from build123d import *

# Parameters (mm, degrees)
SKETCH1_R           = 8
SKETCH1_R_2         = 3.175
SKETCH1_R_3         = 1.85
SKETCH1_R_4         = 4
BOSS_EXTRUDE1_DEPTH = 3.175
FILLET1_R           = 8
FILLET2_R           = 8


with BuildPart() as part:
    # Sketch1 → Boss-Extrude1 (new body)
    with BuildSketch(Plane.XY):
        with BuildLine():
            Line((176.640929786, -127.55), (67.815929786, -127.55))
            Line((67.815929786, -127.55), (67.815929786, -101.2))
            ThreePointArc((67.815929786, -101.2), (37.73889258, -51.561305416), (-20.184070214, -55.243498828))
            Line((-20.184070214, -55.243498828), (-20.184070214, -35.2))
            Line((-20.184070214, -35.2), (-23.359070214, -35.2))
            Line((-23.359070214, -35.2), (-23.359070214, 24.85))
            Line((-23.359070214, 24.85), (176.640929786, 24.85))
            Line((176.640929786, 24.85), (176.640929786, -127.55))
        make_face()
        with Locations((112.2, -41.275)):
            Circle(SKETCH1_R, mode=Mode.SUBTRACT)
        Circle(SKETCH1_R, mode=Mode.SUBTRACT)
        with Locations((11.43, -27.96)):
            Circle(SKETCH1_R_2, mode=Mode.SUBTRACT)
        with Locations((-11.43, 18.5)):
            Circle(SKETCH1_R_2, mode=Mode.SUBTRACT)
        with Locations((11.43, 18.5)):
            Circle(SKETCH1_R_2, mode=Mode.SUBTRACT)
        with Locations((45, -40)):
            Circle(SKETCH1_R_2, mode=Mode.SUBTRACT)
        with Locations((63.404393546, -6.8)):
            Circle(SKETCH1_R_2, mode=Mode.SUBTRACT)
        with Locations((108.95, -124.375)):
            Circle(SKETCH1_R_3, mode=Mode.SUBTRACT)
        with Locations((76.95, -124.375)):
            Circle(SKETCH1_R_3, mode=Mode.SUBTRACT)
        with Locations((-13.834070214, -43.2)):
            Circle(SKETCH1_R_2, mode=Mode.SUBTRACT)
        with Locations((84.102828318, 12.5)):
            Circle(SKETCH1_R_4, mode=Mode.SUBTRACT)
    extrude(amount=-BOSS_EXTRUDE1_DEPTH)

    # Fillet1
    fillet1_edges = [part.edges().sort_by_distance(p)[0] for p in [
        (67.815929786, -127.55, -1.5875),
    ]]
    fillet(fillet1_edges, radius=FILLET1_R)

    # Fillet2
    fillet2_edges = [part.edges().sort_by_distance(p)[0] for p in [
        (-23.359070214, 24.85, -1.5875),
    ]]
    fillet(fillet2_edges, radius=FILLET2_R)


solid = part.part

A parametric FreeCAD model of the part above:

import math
import FreeCAD as App
import Part
import Sketcher
from FreeCAD import Vector
Q = App.Units.Quantity


def edges_at(feature, points):
    """Names of the edges that pass closest to the given points."""
    edges = feature.Shape.Edges
    near = lambda p: min(range(len(edges)), key=lambda i: edges[i].distToShape(Part.Vertex(*p))[0])
    return sorted({f"Edge{near(p) + 1}" for p in points})

doc = App.newDocument("Part")
params = doc.addObject("Spreadsheet::Sheet", "Params")
for row, (alias, value) in enumerate([
    ("sketch1_diameter", "16 mm"),
    ("sketch1_diameter2", "8 mm"),
    ("sketch1_radius", "56 mm"),
    ("sketch1_diameter3", "3.7 mm"),
    ("sketch1_diameter4", "6.35 mm"),
    ("pad1_length", "3.175 mm"),
    ("fillet_radius", "8 mm"),
    ("fillet2_radius", "8 mm"),
], start=1):
    params.set(f"A{row}", alias)
    params.set(f"B{row}", "=" + value)
    params.setAlias(f"B{row}", alias)

body = doc.addObject("PartDesign::Body", "Body")

# Sketch on XY plane
sketch1 = body.newObject("Sketcher::SketchObject", "Sketch")
sketch1.AttachmentSupport = (doc.getObject("XY_Plane"), [""])
sketch1.MapMode = "FlatFace"
sketch1.addGeometry([
    Part.LineSegment(Vector(67.81593, -127.55, 0), Vector(176.64093, -127.55, 0)),  # 0
    Part.LineSegment(Vector(176.64093, -127.55, 0), Vector(176.64093, 24.85, 0)),  # 1
    Part.LineSegment(Vector(176.64093, 24.85, 0), Vector(-23.35907, 24.85, 0)),  # 2
    Part.LineSegment(Vector(-23.35907, 24.85, 0), Vector(-23.35907, -35.2, 0)),  # 3
    Part.LineSegment(Vector(-23.35907, -35.2, 0), Vector(-20.18407, -35.2, 0)),  # 4
    Part.LineSegment(Vector(-20.18407, -35.2, 0), Vector(-20.18407, -55.243499, 0)),  # 5
    Part.ArcOfCircle(Part.Circle(Vector(11.81593, -101.2, 0), Vector(0, 0, 1), 56), math.radians(0), math.radians(124.849905)),  # 6
    Part.LineSegment(Vector(67.81593, -101.2, 0), Vector(67.81593, -127.55, 0)),  # 7
    Part.Circle(Vector(108.95, -124.375, 0), Vector(0, 0, 1), 1.85),  # 8
    Part.Circle(Vector(76.95, -124.375, 0), Vector(0, 0, 1), 1.85),  # 9
    Part.Circle(Vector(112.2, -41.275, 0), Vector(0, 0, 1), 8),  # 10
    Part.Circle(Vector(63.404394, -6.8, 0), Vector(0, 0, 1), 3.175),  # 11
    Part.Circle(Vector(84.102828, 12.5, 0), Vector(0, 0, 1), 4),  # 12
    Part.Circle(Vector(45, -40, 0), Vector(0, 0, 1), 3.175),  # 13
    Part.Circle(Vector(-13.83407, -43.2, 0), Vector(0, 0, 1), 3.175),  # 14
    Part.Circle(Vector(11.43, -27.96, 0), Vector(0, 0, 1), 3.175),  # 15
    Part.Circle(Vector(0, 0, 0), Vector(0, 0, 1), 8),  # 16
    Part.Circle(Vector(11.43, 18.5, 0), Vector(0, 0, 1), 3.175),  # 17
    Part.Circle(Vector(-11.43, 18.5, 0), Vector(0, 0, 1), 3.175),  # 18
], False)
sketch1.addConstraint([
    Sketcher.Constraint("Coincident", 0, 2, 1, 1),
    Sketcher.Constraint("Coincident", 1, 2, 2, 1),
    Sketcher.Constraint("Coincident", 2, 2, 3, 1),
    Sketcher.Constraint("Coincident", 3, 2, 4, 1),
    Sketcher.Constraint("Coincident", 4, 2, 5, 1),
    Sketcher.Constraint("Coincident", 5, 2, 6, 2),
    Sketcher.Constraint("Tangent", 6, 1, 7, 1),
    Sketcher.Constraint("Coincident", 7, 2, 0, 1),
    Sketcher.Constraint("Horizontal", 0),
    Sketcher.Constraint("Vertical", 1),
    Sketcher.Constraint("Horizontal", 2),
    Sketcher.Constraint("Vertical", 3),
    Sketcher.Constraint("Horizontal", 4),
    Sketcher.Constraint("Vertical", 5),
    Sketcher.Constraint("Vertical", 7),
    Sketcher.Constraint("Coincident", 16, 3, -1, 1),
    Sketcher.Constraint("Equal", 8, 9),
    Sketcher.Constraint("Equal", 11, 13),
    Sketcher.Constraint("Equal", 13, 14),
    Sketcher.Constraint("Equal", 14, 15),
    Sketcher.Constraint("Equal", 10, 16),
    Sketcher.Constraint("Equal", 15, 17),
    Sketcher.Constraint("Equal", 17, 18),
    Sketcher.Constraint("Symmetric", 17, 3, 18, 3, -2),
    Sketcher.Constraint("Horizontal", 8, 3, 9, 3),
    Sketcher.Constraint("Vertical", 15, 3, 17, 3),
    Sketcher.Constraint("Diameter", 10, Q("16 mm")),
    Sketcher.Constraint("Diameter", 12, Q("8 mm")),
    Sketcher.Constraint("Radius", 6, Q("56 mm")),
    Sketcher.Constraint("Diameter", 8, Q("3.7 mm")),
    Sketcher.Constraint("Diameter", 11, Q("6.35 mm")),
    Sketcher.Constraint("DistanceX", 2, 2, 2, 1, Q("200 mm")),
    Sketcher.Constraint("DistanceY", 1, 1, 1, 2, Q("152.4 mm")),
    Sketcher.Constraint("DistanceX", -1, 1, 13, 3, Q("45 mm")),
    Sketcher.Constraint("DistanceY", 13, 3, -1, 1, Q("40 mm")),
    Sketcher.Constraint("DistanceX", 9, 3, 8, 3, Q("32 mm")),
    Sketcher.Constraint("DistanceY", 6, 3, 14, 3, Q("58 mm")),
    Sketcher.Constraint("DistanceY", 14, 3, 3, 2, Q("8 mm")),
    Sketcher.Constraint("DistanceX", 5, 2, 6, 3, Q("32 mm")),
    Sketcher.Constraint("DistanceY", 3, 2, 3, 1, Q("60.05 mm")),
    Sketcher.Constraint("DistanceY", 6, 3, -1, 1, Q("101.2 mm")),
    Sketcher.Constraint("DistanceX", -1, 1, 10, 3, Q("112.2 mm")),
    Sketcher.Constraint("DistanceY", 11, 3, -1, 1, Q("6.8 mm")),
    Sketcher.Constraint("DistanceY", -1, 1, 12, 3, Q("12.5 mm")),
    Sketcher.Constraint("DistanceY", -1, 1, 17, 3, Q("18.5 mm")),
    Sketcher.Constraint("DistanceY", 8, 3, 10, 3, Q("83.1 mm")),
    Sketcher.Constraint("DistanceX", 0, 1, 0, 2, Q("108.825 mm")),
    Sketcher.Constraint("DistanceX", -1, 1, 8, 3, Q("108.95 mm")),
    Sketcher.Constraint("DistanceX", -1, 1, 15, 3, Q("11.43 mm")),
    Sketcher.Constraint("DistanceY", 15, 3, -1, 1, Q("27.96 mm")),
    Sketcher.Constraint("DistanceX", 14, 3, 6, 3, Q("25.65 mm")),
    Sketcher.Constraint("DistanceY", 8, 3, -1, 1, Q("124.375 mm")),
    Sketcher.Constraint("DistanceX", 6, 3, 12, 3, Q("72.286899 mm")),
    Sketcher.Constraint("DistanceX", -1, 1, 6, 3, Q("11.81593 mm")),
    Sketcher.Constraint("DistanceX", -1, 1, 11, 3, Q("63.404394 mm")),
])
sketch1.setExpression("Constraints[26]", "Params.sketch1_diameter")
sketch1.setExpression("Constraints[27]", "Params.sketch1_diameter2")
sketch1.setExpression("Constraints[28]", "Params.sketch1_radius")
sketch1.setExpression("Constraints[29]", "Params.sketch1_diameter3")
sketch1.setExpression("Constraints[30]", "Params.sketch1_diameter4")
pad1 = body.newObject("PartDesign::Pad", "Pad")
pad1.Profile = sketch1
pad1.setExpression("Length", "Params.pad1_length")
pad1.Reversed = True
doc.recompute()

fillet = body.newObject("PartDesign::Fillet", "Fillet")
fillet.Base = (pad1, edges_at(pad1, [(67.816, -127.55, -1.587)]))
fillet.setExpression("Radius", "Params.fillet_radius")
doc.recompute()

fillet2 = body.newObject("PartDesign::Fillet", "Fillet001")
fillet2.Base = (fillet, edges_at(fillet, [(-23.359, 24.85, -1.587)]))
fillet2.setExpression("Radius", "Params.fillet2_radius")

doc.recompute()
